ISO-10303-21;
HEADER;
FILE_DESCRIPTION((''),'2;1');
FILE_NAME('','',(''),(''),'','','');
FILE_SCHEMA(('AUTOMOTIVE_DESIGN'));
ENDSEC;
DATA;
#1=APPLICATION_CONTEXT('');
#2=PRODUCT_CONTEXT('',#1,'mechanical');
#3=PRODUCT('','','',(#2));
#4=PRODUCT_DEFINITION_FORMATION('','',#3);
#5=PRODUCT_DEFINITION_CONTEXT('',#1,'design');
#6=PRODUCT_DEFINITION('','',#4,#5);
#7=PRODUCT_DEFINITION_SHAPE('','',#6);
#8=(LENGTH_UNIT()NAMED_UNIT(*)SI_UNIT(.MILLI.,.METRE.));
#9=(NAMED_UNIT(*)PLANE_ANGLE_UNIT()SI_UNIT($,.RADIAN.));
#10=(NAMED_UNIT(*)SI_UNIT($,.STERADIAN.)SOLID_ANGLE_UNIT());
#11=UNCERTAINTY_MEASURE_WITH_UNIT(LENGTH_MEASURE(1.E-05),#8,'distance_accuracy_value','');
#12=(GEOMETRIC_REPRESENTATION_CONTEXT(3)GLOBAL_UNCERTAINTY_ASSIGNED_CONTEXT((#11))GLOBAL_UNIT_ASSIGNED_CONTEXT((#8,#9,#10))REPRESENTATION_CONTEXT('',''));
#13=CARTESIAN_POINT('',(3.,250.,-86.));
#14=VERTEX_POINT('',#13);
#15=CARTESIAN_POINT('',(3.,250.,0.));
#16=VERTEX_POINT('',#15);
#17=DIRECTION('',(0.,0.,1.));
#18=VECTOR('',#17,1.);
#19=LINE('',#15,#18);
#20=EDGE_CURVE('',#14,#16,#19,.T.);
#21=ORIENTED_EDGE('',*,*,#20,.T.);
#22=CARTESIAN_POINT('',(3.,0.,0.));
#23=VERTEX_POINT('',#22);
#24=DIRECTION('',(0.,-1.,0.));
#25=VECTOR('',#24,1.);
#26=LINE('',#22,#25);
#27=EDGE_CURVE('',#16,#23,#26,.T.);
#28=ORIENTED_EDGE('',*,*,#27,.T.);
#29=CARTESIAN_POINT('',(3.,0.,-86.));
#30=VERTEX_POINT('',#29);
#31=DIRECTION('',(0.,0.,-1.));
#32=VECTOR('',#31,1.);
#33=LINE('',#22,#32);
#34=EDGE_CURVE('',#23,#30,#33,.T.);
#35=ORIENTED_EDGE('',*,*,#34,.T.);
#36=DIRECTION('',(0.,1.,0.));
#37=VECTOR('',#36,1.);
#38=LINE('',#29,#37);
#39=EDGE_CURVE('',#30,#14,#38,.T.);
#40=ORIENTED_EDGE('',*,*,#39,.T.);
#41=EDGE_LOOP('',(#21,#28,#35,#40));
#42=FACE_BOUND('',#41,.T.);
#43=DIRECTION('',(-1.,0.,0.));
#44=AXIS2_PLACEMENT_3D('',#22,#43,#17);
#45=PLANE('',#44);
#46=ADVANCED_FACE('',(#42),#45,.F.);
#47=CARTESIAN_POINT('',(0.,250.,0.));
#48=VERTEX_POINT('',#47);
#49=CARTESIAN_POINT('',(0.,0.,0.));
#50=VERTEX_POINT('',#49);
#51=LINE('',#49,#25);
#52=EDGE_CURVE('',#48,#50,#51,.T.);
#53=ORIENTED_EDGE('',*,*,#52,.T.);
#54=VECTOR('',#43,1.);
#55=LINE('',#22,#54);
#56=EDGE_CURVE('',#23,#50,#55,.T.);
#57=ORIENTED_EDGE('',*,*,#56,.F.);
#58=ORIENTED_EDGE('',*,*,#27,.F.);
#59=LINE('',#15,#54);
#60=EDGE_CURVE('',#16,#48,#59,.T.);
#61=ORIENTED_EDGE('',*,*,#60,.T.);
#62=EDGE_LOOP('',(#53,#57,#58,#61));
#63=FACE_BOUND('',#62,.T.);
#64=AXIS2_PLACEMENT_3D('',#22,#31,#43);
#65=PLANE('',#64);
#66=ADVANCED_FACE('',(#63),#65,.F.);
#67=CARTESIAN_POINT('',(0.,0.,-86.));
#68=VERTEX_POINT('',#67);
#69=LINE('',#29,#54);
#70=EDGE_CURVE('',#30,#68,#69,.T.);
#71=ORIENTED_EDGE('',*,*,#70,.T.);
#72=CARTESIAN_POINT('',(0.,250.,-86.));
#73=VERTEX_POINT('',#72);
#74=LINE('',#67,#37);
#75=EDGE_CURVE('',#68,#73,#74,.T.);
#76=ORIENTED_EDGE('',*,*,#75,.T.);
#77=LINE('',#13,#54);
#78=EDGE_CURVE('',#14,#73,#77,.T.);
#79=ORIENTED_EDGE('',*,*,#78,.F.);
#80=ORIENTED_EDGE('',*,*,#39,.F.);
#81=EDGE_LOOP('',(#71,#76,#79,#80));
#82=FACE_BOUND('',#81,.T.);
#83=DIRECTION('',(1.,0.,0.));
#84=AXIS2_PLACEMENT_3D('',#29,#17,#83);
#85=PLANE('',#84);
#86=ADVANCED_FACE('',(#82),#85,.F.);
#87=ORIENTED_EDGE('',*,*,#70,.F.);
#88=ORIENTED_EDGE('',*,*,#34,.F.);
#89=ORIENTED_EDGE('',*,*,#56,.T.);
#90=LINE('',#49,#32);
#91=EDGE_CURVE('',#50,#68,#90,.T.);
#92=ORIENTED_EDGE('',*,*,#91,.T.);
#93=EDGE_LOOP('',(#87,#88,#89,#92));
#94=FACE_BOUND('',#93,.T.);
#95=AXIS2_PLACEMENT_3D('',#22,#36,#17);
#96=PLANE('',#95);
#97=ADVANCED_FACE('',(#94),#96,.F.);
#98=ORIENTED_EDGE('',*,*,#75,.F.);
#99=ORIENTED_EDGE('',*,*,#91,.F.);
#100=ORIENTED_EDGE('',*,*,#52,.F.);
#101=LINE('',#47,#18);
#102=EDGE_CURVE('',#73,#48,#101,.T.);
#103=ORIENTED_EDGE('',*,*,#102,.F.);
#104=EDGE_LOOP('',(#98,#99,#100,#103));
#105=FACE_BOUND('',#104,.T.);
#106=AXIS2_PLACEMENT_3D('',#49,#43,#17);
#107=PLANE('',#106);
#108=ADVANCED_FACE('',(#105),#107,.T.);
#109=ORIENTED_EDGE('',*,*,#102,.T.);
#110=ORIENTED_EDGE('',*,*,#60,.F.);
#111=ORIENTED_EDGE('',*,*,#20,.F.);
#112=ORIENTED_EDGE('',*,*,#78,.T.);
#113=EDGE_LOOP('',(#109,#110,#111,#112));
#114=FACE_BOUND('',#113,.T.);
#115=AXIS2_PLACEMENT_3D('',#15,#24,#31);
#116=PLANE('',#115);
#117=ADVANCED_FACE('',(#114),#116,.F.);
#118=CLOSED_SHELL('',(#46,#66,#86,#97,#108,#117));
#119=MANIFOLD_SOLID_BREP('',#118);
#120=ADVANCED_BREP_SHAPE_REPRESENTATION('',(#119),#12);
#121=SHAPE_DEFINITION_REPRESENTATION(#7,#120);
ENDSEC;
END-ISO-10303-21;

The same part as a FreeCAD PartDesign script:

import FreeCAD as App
import Part
import Sketcher
from FreeCAD import Vector
Q = App.Units.Quantity


def add_polygon(sketch, points):
    """Adds a closed chain of lines whose ends are joined by coincident constraints."""
    first, n = sketch.GeometryCount, len(points)
    for a, b in zip(points, points[1:] + points[:1]):
        sketch.addGeometry(Part.LineSegment(App.Vector(*a, 0), App.Vector(*b, 0)), False)
    for i in range(n):
        sketch.addConstraint(Sketcher.Constraint("Coincident", first + i, 2, first + (i + 1) % n, 1))

doc = App.newDocument("Part")
body = doc.addObject("PartDesign::Body", "Body")

sketch1 = doc.addObject("Sketcher::SketchObject", "Sketch")
body.addObject(sketch1)
sketch1.AttachmentSupport = (doc.YZ_Plane, [""])
sketch1.MapMode = "FlatFace"
add_polygon(sketch1, [(250, 0), (0, 0), (0, -86), (250, -86)])
sketch1.addConstraint([
    Sketcher.Constraint("Horizontal", 0),
    Sketcher.Constraint("Vertical", 1),
    Sketcher.Constraint("Horizontal", 2),
    Sketcher.Constraint("Vertical", 3),
    Sketcher.Constraint("Coincident", 0, 2, -1, 1),
    Sketcher.Constraint("DistanceX", 0, 2, 0, 1, Q("250 mm")),
    Sketcher.Constraint("DistanceY", 1, 2, 1, 1, Q("86 mm")),
])
pad1 = doc.addObject("PartDesign::Pad", "Pad")
body.addObject(pad1)
pad1.Profile = sketch1
pad1.Length = 3

doc.recompute()
